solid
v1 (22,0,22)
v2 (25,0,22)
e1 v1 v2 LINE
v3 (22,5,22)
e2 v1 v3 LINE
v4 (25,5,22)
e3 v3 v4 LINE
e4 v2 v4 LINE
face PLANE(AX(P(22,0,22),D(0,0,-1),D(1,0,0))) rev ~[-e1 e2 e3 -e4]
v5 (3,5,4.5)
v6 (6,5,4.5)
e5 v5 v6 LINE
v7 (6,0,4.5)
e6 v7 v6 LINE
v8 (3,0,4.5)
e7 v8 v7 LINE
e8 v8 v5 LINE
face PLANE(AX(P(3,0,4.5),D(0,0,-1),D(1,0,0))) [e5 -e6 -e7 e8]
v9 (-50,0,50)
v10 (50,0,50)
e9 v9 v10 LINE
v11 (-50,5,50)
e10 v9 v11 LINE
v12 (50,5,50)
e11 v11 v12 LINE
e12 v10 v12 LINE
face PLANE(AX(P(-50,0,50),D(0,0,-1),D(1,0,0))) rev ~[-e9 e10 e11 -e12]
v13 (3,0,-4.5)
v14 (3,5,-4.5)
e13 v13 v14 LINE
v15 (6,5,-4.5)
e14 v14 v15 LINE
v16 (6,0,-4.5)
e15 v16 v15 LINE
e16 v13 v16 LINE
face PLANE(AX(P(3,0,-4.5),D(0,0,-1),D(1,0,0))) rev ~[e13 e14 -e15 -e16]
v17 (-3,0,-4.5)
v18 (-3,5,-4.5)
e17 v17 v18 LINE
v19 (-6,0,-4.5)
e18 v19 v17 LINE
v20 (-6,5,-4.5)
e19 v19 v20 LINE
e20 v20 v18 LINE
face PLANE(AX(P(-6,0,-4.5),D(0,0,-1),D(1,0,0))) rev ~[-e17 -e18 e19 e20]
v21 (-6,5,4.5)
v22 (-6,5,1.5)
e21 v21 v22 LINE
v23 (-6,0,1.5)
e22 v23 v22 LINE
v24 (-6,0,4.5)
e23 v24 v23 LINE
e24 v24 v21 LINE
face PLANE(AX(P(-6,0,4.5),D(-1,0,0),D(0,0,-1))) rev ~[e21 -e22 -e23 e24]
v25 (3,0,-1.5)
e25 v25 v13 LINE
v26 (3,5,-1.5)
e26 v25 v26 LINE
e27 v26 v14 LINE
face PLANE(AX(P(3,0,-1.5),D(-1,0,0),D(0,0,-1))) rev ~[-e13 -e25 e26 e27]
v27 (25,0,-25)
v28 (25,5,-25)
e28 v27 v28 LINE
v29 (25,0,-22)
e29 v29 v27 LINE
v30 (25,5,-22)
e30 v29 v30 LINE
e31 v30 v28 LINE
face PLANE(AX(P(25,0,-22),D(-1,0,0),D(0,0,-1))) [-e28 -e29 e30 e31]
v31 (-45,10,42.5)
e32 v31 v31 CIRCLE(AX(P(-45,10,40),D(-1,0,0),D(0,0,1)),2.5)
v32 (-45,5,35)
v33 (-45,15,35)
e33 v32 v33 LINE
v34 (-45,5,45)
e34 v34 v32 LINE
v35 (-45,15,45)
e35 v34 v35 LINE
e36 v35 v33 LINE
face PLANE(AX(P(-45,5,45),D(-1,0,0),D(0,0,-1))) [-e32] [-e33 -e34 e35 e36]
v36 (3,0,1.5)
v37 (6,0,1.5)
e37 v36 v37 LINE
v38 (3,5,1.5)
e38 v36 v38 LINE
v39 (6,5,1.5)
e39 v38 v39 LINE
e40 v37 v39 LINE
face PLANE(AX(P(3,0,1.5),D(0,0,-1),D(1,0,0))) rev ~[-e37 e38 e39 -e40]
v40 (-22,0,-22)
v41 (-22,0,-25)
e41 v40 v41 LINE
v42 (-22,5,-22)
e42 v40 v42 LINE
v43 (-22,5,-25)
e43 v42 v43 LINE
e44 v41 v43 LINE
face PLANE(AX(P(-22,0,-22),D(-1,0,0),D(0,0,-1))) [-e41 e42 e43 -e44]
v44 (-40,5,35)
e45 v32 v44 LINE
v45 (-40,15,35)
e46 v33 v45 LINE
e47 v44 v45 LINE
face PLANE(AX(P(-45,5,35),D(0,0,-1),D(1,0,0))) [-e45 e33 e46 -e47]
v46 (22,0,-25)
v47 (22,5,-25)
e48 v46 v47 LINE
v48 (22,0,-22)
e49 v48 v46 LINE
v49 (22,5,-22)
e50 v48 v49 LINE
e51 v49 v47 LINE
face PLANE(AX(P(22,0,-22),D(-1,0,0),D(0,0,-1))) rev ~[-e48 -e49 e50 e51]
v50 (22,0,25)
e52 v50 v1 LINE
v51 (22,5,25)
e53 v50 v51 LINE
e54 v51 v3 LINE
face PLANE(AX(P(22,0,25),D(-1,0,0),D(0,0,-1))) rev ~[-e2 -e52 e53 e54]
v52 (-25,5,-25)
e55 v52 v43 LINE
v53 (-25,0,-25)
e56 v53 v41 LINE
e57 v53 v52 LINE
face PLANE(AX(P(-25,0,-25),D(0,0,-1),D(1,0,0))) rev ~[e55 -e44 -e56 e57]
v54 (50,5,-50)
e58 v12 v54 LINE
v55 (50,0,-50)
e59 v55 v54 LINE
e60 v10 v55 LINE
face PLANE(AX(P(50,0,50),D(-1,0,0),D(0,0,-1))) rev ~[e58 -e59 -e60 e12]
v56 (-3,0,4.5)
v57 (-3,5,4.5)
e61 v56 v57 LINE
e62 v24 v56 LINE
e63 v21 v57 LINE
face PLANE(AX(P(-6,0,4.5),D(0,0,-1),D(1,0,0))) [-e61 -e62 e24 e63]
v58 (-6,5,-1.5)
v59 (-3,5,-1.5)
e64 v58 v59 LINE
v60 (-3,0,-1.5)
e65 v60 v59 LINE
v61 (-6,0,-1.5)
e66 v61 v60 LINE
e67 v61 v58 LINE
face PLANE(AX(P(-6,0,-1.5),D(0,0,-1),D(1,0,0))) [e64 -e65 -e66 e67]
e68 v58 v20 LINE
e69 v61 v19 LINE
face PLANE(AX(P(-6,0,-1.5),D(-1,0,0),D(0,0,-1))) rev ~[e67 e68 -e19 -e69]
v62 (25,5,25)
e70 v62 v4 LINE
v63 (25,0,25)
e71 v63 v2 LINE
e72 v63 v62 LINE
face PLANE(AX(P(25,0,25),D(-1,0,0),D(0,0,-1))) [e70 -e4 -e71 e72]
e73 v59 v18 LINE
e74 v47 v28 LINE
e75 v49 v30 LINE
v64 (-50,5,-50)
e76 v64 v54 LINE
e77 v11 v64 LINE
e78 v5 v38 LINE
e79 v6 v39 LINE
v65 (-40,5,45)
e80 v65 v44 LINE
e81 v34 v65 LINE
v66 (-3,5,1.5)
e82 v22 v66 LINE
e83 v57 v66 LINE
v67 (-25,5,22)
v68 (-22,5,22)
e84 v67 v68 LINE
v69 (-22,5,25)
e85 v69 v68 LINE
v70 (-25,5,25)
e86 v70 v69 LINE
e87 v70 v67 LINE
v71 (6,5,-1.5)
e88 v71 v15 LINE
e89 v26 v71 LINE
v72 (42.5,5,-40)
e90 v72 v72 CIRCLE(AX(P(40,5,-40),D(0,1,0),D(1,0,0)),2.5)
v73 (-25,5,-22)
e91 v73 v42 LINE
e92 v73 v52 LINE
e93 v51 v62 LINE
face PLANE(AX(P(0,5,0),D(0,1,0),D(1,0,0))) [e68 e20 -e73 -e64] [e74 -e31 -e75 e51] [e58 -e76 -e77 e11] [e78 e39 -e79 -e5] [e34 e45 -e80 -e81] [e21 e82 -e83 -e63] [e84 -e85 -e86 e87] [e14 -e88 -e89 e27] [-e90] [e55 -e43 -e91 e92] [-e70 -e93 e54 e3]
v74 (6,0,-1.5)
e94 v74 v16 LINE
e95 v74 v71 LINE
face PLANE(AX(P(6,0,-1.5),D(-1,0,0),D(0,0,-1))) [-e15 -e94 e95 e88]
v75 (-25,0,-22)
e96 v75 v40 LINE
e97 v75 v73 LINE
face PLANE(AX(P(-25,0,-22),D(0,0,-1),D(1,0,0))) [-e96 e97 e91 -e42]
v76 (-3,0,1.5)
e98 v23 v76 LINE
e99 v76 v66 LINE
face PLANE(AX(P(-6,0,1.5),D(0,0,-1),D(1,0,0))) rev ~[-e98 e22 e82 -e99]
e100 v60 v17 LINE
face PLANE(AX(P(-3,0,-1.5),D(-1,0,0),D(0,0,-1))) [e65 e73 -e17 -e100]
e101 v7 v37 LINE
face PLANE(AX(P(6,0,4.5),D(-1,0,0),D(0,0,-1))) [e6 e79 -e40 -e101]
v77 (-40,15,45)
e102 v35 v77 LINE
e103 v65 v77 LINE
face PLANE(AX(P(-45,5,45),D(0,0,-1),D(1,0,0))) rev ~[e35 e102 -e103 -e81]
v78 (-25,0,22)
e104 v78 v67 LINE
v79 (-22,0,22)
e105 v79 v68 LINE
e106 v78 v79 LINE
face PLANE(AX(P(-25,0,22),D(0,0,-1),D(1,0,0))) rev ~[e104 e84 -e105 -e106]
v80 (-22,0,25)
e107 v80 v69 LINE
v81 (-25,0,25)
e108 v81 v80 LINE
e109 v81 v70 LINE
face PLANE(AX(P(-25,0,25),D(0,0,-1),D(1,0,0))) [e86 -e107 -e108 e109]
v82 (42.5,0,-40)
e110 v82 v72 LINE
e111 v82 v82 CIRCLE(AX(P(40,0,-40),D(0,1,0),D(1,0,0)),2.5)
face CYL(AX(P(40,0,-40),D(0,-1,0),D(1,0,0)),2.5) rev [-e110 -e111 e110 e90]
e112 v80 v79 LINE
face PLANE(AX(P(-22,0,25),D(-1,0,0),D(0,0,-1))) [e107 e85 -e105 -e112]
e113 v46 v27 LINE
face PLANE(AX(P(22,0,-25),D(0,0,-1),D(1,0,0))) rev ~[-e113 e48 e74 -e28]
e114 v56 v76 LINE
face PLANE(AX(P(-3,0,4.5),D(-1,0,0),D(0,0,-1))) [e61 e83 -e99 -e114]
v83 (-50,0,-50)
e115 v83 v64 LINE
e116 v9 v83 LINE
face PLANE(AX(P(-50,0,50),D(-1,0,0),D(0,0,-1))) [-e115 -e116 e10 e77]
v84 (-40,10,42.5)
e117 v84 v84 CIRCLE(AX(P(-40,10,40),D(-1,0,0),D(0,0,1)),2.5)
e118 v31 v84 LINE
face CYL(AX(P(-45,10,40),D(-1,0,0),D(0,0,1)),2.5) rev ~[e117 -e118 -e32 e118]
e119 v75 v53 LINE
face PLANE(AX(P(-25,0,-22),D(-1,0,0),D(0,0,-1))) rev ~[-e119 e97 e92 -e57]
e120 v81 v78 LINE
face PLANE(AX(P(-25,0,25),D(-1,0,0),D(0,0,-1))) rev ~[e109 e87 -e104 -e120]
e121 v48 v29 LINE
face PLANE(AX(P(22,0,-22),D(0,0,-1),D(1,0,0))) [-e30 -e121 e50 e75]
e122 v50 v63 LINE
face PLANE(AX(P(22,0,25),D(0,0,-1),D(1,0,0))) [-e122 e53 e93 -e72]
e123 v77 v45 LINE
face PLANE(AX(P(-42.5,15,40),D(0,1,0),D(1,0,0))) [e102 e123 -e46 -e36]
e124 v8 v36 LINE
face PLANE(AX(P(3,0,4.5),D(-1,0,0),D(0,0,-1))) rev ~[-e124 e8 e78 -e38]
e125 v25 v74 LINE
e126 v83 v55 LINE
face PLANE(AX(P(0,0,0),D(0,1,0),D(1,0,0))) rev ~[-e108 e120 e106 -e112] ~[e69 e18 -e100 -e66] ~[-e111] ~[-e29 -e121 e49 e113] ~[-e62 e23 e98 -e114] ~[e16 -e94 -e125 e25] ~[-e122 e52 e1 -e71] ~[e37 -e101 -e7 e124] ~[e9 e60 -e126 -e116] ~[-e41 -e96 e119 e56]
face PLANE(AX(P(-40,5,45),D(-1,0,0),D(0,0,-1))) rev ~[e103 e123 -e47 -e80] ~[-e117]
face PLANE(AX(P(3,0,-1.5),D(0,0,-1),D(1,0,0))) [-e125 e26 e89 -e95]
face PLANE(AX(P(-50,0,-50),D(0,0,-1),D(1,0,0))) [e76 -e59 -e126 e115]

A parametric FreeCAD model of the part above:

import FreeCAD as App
import Part
import Sketcher

doc = App.newDocument("Part")
body = doc.addObject("PartDesign::Body", "Body")

# Sketch on XZ plane
sketch1 = body.newObject("Sketcher::SketchObject", "Sketch")
sketch1.AttachmentSupport = (doc.getObject("XZ_Plane"), [""])
sketch1.MapMode = "FlatFace"
sketch1.addGeometry(Part.LineSegment(App.Vector(-50, -50, 0), App.Vector(-50, 50, 0)), False)
sketch1.addGeometry(Part.LineSegment(App.Vector(-50, 50, 0), App.Vector(50, 50, 0)), False)
sketch1.addGeometry(Part.LineSegment(App.Vector(50, 50, 0), App.Vector(50, -50, 0)), False)
sketch1.addGeometry(Part.LineSegment(App.Vector(50, -50, 0), App.Vector(-50, -50, 0)), False)
sketch1.addGeometry(Part.LineSegment(App.Vector(-22, 25, 0), App.Vector(-25, 25, 0)), False)
sketch1.addGeometry(Part.LineSegment(App.Vector(-25, 25, 0), App.Vector(-25, 22, 0)), False)
sketch1.addGeometry(Part.LineSegment(App.Vector(-25, 22, 0), App.Vector(-22, 22, 0)), False)
sketch1.addGeometry(Part.LineSegment(App.Vector(-22, 22, 0), App.Vector(-22, 25, 0)), False)
sketch1.addGeometry(Part.LineSegment(App.Vector(-3, 4.5, 0), App.Vector(-6, 4.5, 0)), False)
sketch1.addGeometry(Part.LineSegment(App.Vector(-6, 4.5, 0), App.Vector(-6, 1.5, 0)), False)
sketch1.addGeometry(Part.LineSegment(App.Vector(-6, 1.5, 0), App.Vector(-3, 1.5, 0)), False)
sketch1.addGeometry(Part.LineSegment(App.Vector(-3, 1.5, 0), App.Vector(-3, 4.5, 0)), False)
sketch1.addGeometry(Part.LineSegment(App.Vector(6, 4.5, 0), App.Vector(3, 4.5, 0)), False)
sketch1.addGeometry(Part.LineSegment(App.Vector(3, 4.5, 0), App.Vector(3, 1.5, 0)), False)
sketch1.addGeometry(Part.LineSegment(App.Vector(3, 1.5, 0), App.Vector(6, 1.5, 0)), False)
sketch1.addGeometry(Part.LineSegment(App.Vector(6, 1.5, 0), App.Vector(6, 4.5, 0)), False)
sketch1.addGeometry(Part.LineSegment(App.Vector(-3, -1.5, 0), App.Vector(-6, -1.5, 0)), False)
sketch1.addGeometry(Part.LineSegment(App.Vector(-6, -1.5, 0), App.Vector(-6, -4.5, 0)), False)
sketch1.addGeometry(Part.LineSegment(App.Vector(-6, -4.5, 0), App.Vector(-3, -4.5, 0)), False)
sketch1.addGeometry(Part.LineSegment(App.Vector(-3, -4.5, 0), App.Vector(-3, -1.5, 0)), False)
sketch1.addGeometry(Part.LineSegment(App.Vector(6, -1.5, 0), App.Vector(3, -1.5, 0)), False)
sketch1.addGeometry(Part.LineSegment(App.Vector(3, -1.5, 0), App.Vector(3, -4.5, 0)), False)
sketch1.addGeometry(Part.LineSegment(App.Vector(3, -4.5, 0), App.Vector(6, -4.5, 0)), False)
sketch1.addGeometry(Part.LineSegment(App.Vector(6, -4.5, 0), App.Vector(6, -1.5, 0)), False)
sketch1.addGeometry(Part.LineSegment(App.Vector(25, 25, 0), App.Vector(22, 25, 0)), False)
sketch1.addGeometry(Part.LineSegment(App.Vector(22, 25, 0), App.Vector(22, 22, 0)), False)
sketch1.addGeometry(Part.LineSegment(App.Vector(22, 22, 0), App.Vector(25, 22, 0)), False)
sketch1.addGeometry(Part.LineSegment(App.Vector(25, 22, 0), App.Vector(25, 25, 0)), False)
sketch1.addGeometry(Part.LineSegment(App.Vector(-22, -22, 0), App.Vector(-25, -22, 0)), False)
sketch1.addGeometry(Part.LineSegment(App.Vector(-25, -22, 0), App.Vector(-25, -25, 0)), False)
sketch1.addGeometry(Part.LineSegment(App.Vector(-25, -25, 0), App.Vector(-22, -25, 0)), False)
sketch1.addGeometry(Part.LineSegment(App.Vector(-22, -25, 0), App.Vector(-22, -22, 0)), False)
sketch1.addGeometry(Part.LineSegment(App.Vector(25, -22, 0), App.Vector(22, -22, 0)), False)
sketch1.addGeometry(Part.LineSegment(App.Vector(22, -22, 0), App.Vector(22, -25, 0)), False)
sketch1.addGeometry(Part.LineSegment(App.Vector(22, -25, 0), App.Vector(25, -25, 0)), False)
sketch1.addGeometry(Part.LineSegment(App.Vector(25, -25, 0), App.Vector(25, -22, 0)), False)
sketch1.addGeometry(Part.Circle(App.Vector(40, -40, 0), App.Vector(0, 0, 1), 2.5), False)
sketch1.addConstraint(Sketcher.Constraint("Coincident", 0, 2, 1, 1))
sketch1.addConstraint(Sketcher.Constraint("Coincident", 1, 2, 2, 1))
sketch1.addConstraint(Sketcher.Constraint("Coincident", 2, 2, 3, 1))
sketch1.addConstraint(Sketcher.Constraint("Coincident", 3, 2, 0, 1))
sketch1.addConstraint(Sketcher.Constraint("Coincident", 4, 2, 5, 1))
sketch1.addConstraint(Sketcher.Constraint("Coincident", 5, 2, 6, 1))
sketch1.addConstraint(Sketcher.Constraint("Coincident", 6, 2, 7, 1))
sketch1.addConstraint(Sketcher.Constraint("Coincident", 7, 2, 4, 1))
sketch1.addConstraint(Sketcher.Constraint("Coincident", 8, 2, 9, 1))
sketch1.addConstraint(Sketcher.Constraint("Coincident", 9, 2, 10, 1))
sketch1.addConstraint(Sketcher.Constraint("Coincident", 10, 2, 11, 1))
sketch1.addConstraint(Sketcher.Constraint("Coincident", 11, 2, 8, 1))
sketch1.addConstraint(Sketcher.Constraint("Coincident", 12, 2, 13, 1))
sketch1.addConstraint(Sketcher.Constraint("Coincident", 13, 2, 14, 1))
sketch1.addConstraint(Sketcher.Constraint("Coincident", 14, 2, 15, 1))
sketch1.addConstraint(Sketcher.Constraint("Coincident", 15, 2, 12, 1))
sketch1.addConstraint(Sketcher.Constraint("Coincident", 16, 2, 17, 1))
sketch1.addConstraint(Sketcher.Constraint("Coincident", 17, 2, 18, 1))
sketch1.addConstraint(Sketcher.Constraint("Coincident", 18, 2, 19, 1))
sketch1.addConstraint(Sketcher.Constraint("Coincident", 19, 2, 16, 1))
sketch1.addConstraint(Sketcher.Constraint("Coincident", 20, 2, 21, 1))
sketch1.addConstraint(Sketcher.Constraint("Coincident", 21, 2, 22, 1))
sketch1.addConstraint(Sketcher.Constraint("Coincident", 22, 2, 23, 1))
sketch1.addConstraint(Sketcher.Constraint("Coincident", 23, 2, 20, 1))
sketch1.addConstraint(Sketcher.Constraint("Coincident", 24, 2, 25, 1))
sketch1.addConstraint(Sketcher.Constraint("Coincident", 25, 2, 26, 1))
sketch1.addConstraint(Sketcher.Constraint("Coincident", 26, 2, 27, 1))
sketch1.addConstraint(Sketcher.Constraint("Coincident", 27, 2, 24, 1))
sketch1.addConstraint(Sketcher.Constraint("Coincident", 28, 2, 29, 1))
sketch1.addConstraint(Sketcher.Constraint("Coincident", 29, 2, 30, 1))
sketch1.addConstraint(Sketcher.Constraint("Coincident", 30, 2, 31, 1))
sketch1.addConstraint(Sketcher.Constraint("Coincident", 31, 2, 28, 1))
sketch1.addConstraint(Sketcher.Constraint("Coincident", 32, 2, 33, 1))
sketch1.addConstraint(Sketcher.Constraint("Coincident", 33, 2, 34, 1))
sketch1.addConstraint(Sketcher.Constraint("Coincident", 34, 2, 35, 1))
sketch1.addConstraint(Sketcher.Constraint("Coincident", 35, 2, 32, 1))
sketch1.addConstraint(Sketcher.Constraint("Vertical", 0))
sketch1.addConstraint(Sketcher.Constraint("Horizontal", 1))
sketch1.addConstraint(Sketcher.Constraint("Vertical", 2))
sketch1.addConstraint(Sketcher.Constraint("Horizontal", 3))
sketch1.addConstraint(Sketcher.Constraint("Horizontal", 4))
sketch1.addConstraint(Sketcher.Constraint("Vertical", 5))
sketch1.addConstraint(Sketcher.Constraint("Horizontal", 6))
sketch1.addConstraint(Sketcher.Constraint("Vertical", 7))
sketch1.addConstraint(Sketcher.Constraint("Horizontal", 8))
sketch1.addConstraint(Sketcher.Constraint("Vertical", 9))
sketch1.addConstraint(Sketcher.Constraint("Horizontal", 10))
sketch1.addConstraint(Sketcher.Constraint("Vertical", 11))
sketch1.addConstraint(Sketcher.Constraint("Horizontal", 12))
sketch1.addConstraint(Sketcher.Constraint("Vertical", 13))
sketch1.addConstraint(Sketcher.Constraint("Horizontal", 14))
sketch1.addConstraint(Sketcher.Constraint("Vertical", 15))
sketch1.addConstraint(Sketcher.Constraint("Horizontal", 16))
sketch1.addConstraint(Sketcher.Constraint("Vertical", 17))
sketch1.addConstraint(Sketcher.Constraint("Horizontal", 18))
sketch1.addConstraint(Sketcher.Constraint("Vertical", 19))
sketch1.addConstraint(Sketcher.Constraint("Horizontal", 20))
sketch1.addConstraint(Sketcher.Constraint("Vertical", 21))
sketch1.addConstraint(Sketcher.Constraint("Horizontal", 22))
sketch1.addConstraint(Sketcher.Constraint("Vertical", 23))
sketch1.addConstraint(Sketcher.Constraint("Horizontal", 24))
sketch1.addConstraint(Sketcher.Constraint("Vertical", 25))
sketch1.addConstraint(Sketcher.Constraint("Horizontal", 26))
sketch1.addConstraint(Sketcher.Constraint("Vertical", 27))
sketch1.addConstraint(Sketcher.Constraint("Horizontal", 28))
sketch1.addConstraint(Sketcher.Constraint("Vertical", 29))
sketch1.addConstraint(Sketcher.Constraint("Horizontal", 30))
sketch1.addConstraint(Sketcher.Constraint("Vertical", 31))
sketch1.addConstraint(Sketcher.Constraint("Horizontal", 32))
sketch1.addConstraint(Sketcher.Constraint("Vertical", 33))
sketch1.addConstraint(Sketcher.Constraint("Horizontal", 34))
sketch1.addConstraint(Sketcher.Constraint("Vertical", 35))
sketch1.addConstraint(Sketcher.Constraint("Symmetric", 0, 2, 2, 2, -1, 1))
sketch1.addConstraint(Sketcher.Constraint("Symmetric", 14, 2, 16, 2, -1, 1))
sketch1.addConstraint(Sketcher.Constraint("Symmetric", 12, 2, 18, 2, -1, 1))
sketch1.addConstraint(Sketcher.Constraint("Symmetric", 10, 2, 20, 2, -1, 1))
sketch1.addConstraint(Sketcher.Constraint("Symmetric", 8, 2, 22, 2, -1, 1))
sketch1.addConstraint(Sketcher.Constraint("Symmetric", 26, 2, 28, 2, -1, 1))
sketch1.addConstraint(Sketcher.Constraint("Symmetric", 24, 2, 30, 2, -1, 1))
sketch1.addConstraint(Sketcher.Constraint("Symmetric", 6, 2, 32, 2, -1, 1))
sketch1.addConstraint(Sketcher.Constraint("Symmetric", 4, 2, 34, 2, -1, 1))
sketch1.addConstraint(Sketcher.Constraint("Symmetric", 11, 2, 12, 2, -2))
sketch1.addConstraint(Sketcher.Constraint("Symmetric", 9, 2, 14, 2, -2))
sketch1.addConstraint(Sketcher.Constraint("Symmetric", 7, 2, 24, 2, -2))
sketch1.addConstraint(Sketcher.Constraint("Symmetric", 5, 2, 26, 2, -2))
sketch1.addConstraint(Sketcher.Constraint("Equal", 6, 8))
sketch1.addConstraint(Sketcher.Constraint("Equal", 3, 0))
sketch1.addConstraint(Sketcher.Constraint("Equal", 34, 5))
sketch1.addConstraint(Sketcher.Constraint("Equal", 7, 9))
sketch1.addConstraint(Sketcher.Constraint("Diameter", 36, 5.0))
sketch1.addConstraint(Sketcher.Constraint("DistanceX", 1, 1, 1, 2, 100.0))
sketch1.addConstraint(Sketcher.Constraint("DistanceX", 4, 2, 4, 1, 3.0))
sketch1.addConstraint(Sketcher.Constraint("DistanceX", -1, 1, 36, 3, 40.0))
sketch1.addConstraint(Sketcher.Constraint("DistanceY", 36, 3, -1, 1, 40.0))
sketch1.addConstraint(Sketcher.Constraint("DistanceX", 4, 2, -1, 1, 25.0))
sketch1.addConstraint(Sketcher.Constraint("DistanceY", -1, 1, 4, 2, 25.0))
sketch1.addConstraint(Sketcher.Constraint("DistanceX", 8, 2, -1, 1, 6.0))
sketch1.addConstraint(Sketcher.Constraint("DistanceY", 16, 2, 9, 2, 3.0))
pad1 = body.newObject("PartDesign::Pad", "Pad")
pad1.Profile = sketch1
pad1.Length = 5
pad1.Reversed = True

# Sketch on XZ plane
sketch2 = body.newObject("Sketcher::SketchObject", "Sketch001")
sketch2.AttachmentSupport = (doc.getObject("XZ_Plane"), [""])
sketch2.MapMode = "FlatFace"
sketch2.AttachmentOffset = App.Placement(App.Vector(0, 0, -5), App.Rotation())
sketch2.addGeometry(Part.LineSegment(App.Vector(-45, 35, 0), App.Vector(-45, 45, 0)), False)
sketch2.addGeometry(Part.LineSegment(App.Vector(-45, 45, 0), App.Vector(-40, 45, 0)), False)
sketch2.addGeometry(Part.LineSegment(App.Vector(-40, 45, 0), App.Vector(-40, 35, 0)), False)
sketch2.addGeometry(Part.LineSegment(App.Vector(-40, 35, 0), App.Vector(-45, 35, 0)), False)
sketch2.addConstraint(Sketcher.Constraint("Coincident", 0, 2, 1, 1))
sketch2.addConstraint(Sketcher.Constraint("Coincident", 1, 2, 2, 1))
sketch2.addConstraint(Sketcher.Constraint("Coincident", 2, 2, 3, 1))
sketch2.addConstraint(Sketcher.Constraint("Coincident", 3, 2, 0, 1))
sketch2.addConstraint(Sketcher.Constraint("Vertical", 0))
sketch2.addConstraint(Sketcher.Constraint("Horizontal", 1))
sketch2.addConstraint(Sketcher.Constraint("Vertical", 2))
sketch2.addConstraint(Sketcher.Constraint("Horizontal", 3))
sketch2.addConstraint(Sketcher.Constraint("DistanceX", 1, 1, 1, 2, 5.0))
sketch2.addConstraint(Sketcher.Constraint("DistanceY", 0, 1, 0, 2, 10.0))
sketch2.addConstraint(Sketcher.Constraint("DistanceX", 0, 2, -1, 1, 45.0))
sketch2.addConstraint(Sketcher.Constraint("DistanceY", -1, 1, 0, 2, 45.0))
pad2 = body.newObject("PartDesign::Pad", "Pad001")
pad2.Profile = sketch2
pad2.Length = 10
pad2.Reversed = True

# Sketch on YZ plane
sketch3 = body.newObject("Sketcher::SketchObject", "Sketch002")
sketch3.AttachmentSupport = (doc.getObject("YZ_Plane"), [""])
sketch3.MapMode = "FlatFace"
sketch3.AttachmentOffset = App.Placement(App.Vector(0, 0, -45), App.Rotation())
sketch3.addGeometry(Part.Circle(App.Vector(10, 40, 0), App.Vector(0, 0, 1), 2.5), False)
sketch3.addConstraint(Sketcher.Constraint("Diameter", 0, 5.0))
sketch3.addConstraint(Sketcher.Constraint("DistanceX", -1, 1, 0, 3, 10.0))
sketch3.addConstraint(Sketcher.Constraint("DistanceY", -1, 1, 0, 3, 40.0))
pocket1 = body.newObject("PartDesign::Pocket", "Pocket")
pocket1.Profile = sketch3
pocket1.Length = 15
pocket1.Reversed = True

doc.recompute()
